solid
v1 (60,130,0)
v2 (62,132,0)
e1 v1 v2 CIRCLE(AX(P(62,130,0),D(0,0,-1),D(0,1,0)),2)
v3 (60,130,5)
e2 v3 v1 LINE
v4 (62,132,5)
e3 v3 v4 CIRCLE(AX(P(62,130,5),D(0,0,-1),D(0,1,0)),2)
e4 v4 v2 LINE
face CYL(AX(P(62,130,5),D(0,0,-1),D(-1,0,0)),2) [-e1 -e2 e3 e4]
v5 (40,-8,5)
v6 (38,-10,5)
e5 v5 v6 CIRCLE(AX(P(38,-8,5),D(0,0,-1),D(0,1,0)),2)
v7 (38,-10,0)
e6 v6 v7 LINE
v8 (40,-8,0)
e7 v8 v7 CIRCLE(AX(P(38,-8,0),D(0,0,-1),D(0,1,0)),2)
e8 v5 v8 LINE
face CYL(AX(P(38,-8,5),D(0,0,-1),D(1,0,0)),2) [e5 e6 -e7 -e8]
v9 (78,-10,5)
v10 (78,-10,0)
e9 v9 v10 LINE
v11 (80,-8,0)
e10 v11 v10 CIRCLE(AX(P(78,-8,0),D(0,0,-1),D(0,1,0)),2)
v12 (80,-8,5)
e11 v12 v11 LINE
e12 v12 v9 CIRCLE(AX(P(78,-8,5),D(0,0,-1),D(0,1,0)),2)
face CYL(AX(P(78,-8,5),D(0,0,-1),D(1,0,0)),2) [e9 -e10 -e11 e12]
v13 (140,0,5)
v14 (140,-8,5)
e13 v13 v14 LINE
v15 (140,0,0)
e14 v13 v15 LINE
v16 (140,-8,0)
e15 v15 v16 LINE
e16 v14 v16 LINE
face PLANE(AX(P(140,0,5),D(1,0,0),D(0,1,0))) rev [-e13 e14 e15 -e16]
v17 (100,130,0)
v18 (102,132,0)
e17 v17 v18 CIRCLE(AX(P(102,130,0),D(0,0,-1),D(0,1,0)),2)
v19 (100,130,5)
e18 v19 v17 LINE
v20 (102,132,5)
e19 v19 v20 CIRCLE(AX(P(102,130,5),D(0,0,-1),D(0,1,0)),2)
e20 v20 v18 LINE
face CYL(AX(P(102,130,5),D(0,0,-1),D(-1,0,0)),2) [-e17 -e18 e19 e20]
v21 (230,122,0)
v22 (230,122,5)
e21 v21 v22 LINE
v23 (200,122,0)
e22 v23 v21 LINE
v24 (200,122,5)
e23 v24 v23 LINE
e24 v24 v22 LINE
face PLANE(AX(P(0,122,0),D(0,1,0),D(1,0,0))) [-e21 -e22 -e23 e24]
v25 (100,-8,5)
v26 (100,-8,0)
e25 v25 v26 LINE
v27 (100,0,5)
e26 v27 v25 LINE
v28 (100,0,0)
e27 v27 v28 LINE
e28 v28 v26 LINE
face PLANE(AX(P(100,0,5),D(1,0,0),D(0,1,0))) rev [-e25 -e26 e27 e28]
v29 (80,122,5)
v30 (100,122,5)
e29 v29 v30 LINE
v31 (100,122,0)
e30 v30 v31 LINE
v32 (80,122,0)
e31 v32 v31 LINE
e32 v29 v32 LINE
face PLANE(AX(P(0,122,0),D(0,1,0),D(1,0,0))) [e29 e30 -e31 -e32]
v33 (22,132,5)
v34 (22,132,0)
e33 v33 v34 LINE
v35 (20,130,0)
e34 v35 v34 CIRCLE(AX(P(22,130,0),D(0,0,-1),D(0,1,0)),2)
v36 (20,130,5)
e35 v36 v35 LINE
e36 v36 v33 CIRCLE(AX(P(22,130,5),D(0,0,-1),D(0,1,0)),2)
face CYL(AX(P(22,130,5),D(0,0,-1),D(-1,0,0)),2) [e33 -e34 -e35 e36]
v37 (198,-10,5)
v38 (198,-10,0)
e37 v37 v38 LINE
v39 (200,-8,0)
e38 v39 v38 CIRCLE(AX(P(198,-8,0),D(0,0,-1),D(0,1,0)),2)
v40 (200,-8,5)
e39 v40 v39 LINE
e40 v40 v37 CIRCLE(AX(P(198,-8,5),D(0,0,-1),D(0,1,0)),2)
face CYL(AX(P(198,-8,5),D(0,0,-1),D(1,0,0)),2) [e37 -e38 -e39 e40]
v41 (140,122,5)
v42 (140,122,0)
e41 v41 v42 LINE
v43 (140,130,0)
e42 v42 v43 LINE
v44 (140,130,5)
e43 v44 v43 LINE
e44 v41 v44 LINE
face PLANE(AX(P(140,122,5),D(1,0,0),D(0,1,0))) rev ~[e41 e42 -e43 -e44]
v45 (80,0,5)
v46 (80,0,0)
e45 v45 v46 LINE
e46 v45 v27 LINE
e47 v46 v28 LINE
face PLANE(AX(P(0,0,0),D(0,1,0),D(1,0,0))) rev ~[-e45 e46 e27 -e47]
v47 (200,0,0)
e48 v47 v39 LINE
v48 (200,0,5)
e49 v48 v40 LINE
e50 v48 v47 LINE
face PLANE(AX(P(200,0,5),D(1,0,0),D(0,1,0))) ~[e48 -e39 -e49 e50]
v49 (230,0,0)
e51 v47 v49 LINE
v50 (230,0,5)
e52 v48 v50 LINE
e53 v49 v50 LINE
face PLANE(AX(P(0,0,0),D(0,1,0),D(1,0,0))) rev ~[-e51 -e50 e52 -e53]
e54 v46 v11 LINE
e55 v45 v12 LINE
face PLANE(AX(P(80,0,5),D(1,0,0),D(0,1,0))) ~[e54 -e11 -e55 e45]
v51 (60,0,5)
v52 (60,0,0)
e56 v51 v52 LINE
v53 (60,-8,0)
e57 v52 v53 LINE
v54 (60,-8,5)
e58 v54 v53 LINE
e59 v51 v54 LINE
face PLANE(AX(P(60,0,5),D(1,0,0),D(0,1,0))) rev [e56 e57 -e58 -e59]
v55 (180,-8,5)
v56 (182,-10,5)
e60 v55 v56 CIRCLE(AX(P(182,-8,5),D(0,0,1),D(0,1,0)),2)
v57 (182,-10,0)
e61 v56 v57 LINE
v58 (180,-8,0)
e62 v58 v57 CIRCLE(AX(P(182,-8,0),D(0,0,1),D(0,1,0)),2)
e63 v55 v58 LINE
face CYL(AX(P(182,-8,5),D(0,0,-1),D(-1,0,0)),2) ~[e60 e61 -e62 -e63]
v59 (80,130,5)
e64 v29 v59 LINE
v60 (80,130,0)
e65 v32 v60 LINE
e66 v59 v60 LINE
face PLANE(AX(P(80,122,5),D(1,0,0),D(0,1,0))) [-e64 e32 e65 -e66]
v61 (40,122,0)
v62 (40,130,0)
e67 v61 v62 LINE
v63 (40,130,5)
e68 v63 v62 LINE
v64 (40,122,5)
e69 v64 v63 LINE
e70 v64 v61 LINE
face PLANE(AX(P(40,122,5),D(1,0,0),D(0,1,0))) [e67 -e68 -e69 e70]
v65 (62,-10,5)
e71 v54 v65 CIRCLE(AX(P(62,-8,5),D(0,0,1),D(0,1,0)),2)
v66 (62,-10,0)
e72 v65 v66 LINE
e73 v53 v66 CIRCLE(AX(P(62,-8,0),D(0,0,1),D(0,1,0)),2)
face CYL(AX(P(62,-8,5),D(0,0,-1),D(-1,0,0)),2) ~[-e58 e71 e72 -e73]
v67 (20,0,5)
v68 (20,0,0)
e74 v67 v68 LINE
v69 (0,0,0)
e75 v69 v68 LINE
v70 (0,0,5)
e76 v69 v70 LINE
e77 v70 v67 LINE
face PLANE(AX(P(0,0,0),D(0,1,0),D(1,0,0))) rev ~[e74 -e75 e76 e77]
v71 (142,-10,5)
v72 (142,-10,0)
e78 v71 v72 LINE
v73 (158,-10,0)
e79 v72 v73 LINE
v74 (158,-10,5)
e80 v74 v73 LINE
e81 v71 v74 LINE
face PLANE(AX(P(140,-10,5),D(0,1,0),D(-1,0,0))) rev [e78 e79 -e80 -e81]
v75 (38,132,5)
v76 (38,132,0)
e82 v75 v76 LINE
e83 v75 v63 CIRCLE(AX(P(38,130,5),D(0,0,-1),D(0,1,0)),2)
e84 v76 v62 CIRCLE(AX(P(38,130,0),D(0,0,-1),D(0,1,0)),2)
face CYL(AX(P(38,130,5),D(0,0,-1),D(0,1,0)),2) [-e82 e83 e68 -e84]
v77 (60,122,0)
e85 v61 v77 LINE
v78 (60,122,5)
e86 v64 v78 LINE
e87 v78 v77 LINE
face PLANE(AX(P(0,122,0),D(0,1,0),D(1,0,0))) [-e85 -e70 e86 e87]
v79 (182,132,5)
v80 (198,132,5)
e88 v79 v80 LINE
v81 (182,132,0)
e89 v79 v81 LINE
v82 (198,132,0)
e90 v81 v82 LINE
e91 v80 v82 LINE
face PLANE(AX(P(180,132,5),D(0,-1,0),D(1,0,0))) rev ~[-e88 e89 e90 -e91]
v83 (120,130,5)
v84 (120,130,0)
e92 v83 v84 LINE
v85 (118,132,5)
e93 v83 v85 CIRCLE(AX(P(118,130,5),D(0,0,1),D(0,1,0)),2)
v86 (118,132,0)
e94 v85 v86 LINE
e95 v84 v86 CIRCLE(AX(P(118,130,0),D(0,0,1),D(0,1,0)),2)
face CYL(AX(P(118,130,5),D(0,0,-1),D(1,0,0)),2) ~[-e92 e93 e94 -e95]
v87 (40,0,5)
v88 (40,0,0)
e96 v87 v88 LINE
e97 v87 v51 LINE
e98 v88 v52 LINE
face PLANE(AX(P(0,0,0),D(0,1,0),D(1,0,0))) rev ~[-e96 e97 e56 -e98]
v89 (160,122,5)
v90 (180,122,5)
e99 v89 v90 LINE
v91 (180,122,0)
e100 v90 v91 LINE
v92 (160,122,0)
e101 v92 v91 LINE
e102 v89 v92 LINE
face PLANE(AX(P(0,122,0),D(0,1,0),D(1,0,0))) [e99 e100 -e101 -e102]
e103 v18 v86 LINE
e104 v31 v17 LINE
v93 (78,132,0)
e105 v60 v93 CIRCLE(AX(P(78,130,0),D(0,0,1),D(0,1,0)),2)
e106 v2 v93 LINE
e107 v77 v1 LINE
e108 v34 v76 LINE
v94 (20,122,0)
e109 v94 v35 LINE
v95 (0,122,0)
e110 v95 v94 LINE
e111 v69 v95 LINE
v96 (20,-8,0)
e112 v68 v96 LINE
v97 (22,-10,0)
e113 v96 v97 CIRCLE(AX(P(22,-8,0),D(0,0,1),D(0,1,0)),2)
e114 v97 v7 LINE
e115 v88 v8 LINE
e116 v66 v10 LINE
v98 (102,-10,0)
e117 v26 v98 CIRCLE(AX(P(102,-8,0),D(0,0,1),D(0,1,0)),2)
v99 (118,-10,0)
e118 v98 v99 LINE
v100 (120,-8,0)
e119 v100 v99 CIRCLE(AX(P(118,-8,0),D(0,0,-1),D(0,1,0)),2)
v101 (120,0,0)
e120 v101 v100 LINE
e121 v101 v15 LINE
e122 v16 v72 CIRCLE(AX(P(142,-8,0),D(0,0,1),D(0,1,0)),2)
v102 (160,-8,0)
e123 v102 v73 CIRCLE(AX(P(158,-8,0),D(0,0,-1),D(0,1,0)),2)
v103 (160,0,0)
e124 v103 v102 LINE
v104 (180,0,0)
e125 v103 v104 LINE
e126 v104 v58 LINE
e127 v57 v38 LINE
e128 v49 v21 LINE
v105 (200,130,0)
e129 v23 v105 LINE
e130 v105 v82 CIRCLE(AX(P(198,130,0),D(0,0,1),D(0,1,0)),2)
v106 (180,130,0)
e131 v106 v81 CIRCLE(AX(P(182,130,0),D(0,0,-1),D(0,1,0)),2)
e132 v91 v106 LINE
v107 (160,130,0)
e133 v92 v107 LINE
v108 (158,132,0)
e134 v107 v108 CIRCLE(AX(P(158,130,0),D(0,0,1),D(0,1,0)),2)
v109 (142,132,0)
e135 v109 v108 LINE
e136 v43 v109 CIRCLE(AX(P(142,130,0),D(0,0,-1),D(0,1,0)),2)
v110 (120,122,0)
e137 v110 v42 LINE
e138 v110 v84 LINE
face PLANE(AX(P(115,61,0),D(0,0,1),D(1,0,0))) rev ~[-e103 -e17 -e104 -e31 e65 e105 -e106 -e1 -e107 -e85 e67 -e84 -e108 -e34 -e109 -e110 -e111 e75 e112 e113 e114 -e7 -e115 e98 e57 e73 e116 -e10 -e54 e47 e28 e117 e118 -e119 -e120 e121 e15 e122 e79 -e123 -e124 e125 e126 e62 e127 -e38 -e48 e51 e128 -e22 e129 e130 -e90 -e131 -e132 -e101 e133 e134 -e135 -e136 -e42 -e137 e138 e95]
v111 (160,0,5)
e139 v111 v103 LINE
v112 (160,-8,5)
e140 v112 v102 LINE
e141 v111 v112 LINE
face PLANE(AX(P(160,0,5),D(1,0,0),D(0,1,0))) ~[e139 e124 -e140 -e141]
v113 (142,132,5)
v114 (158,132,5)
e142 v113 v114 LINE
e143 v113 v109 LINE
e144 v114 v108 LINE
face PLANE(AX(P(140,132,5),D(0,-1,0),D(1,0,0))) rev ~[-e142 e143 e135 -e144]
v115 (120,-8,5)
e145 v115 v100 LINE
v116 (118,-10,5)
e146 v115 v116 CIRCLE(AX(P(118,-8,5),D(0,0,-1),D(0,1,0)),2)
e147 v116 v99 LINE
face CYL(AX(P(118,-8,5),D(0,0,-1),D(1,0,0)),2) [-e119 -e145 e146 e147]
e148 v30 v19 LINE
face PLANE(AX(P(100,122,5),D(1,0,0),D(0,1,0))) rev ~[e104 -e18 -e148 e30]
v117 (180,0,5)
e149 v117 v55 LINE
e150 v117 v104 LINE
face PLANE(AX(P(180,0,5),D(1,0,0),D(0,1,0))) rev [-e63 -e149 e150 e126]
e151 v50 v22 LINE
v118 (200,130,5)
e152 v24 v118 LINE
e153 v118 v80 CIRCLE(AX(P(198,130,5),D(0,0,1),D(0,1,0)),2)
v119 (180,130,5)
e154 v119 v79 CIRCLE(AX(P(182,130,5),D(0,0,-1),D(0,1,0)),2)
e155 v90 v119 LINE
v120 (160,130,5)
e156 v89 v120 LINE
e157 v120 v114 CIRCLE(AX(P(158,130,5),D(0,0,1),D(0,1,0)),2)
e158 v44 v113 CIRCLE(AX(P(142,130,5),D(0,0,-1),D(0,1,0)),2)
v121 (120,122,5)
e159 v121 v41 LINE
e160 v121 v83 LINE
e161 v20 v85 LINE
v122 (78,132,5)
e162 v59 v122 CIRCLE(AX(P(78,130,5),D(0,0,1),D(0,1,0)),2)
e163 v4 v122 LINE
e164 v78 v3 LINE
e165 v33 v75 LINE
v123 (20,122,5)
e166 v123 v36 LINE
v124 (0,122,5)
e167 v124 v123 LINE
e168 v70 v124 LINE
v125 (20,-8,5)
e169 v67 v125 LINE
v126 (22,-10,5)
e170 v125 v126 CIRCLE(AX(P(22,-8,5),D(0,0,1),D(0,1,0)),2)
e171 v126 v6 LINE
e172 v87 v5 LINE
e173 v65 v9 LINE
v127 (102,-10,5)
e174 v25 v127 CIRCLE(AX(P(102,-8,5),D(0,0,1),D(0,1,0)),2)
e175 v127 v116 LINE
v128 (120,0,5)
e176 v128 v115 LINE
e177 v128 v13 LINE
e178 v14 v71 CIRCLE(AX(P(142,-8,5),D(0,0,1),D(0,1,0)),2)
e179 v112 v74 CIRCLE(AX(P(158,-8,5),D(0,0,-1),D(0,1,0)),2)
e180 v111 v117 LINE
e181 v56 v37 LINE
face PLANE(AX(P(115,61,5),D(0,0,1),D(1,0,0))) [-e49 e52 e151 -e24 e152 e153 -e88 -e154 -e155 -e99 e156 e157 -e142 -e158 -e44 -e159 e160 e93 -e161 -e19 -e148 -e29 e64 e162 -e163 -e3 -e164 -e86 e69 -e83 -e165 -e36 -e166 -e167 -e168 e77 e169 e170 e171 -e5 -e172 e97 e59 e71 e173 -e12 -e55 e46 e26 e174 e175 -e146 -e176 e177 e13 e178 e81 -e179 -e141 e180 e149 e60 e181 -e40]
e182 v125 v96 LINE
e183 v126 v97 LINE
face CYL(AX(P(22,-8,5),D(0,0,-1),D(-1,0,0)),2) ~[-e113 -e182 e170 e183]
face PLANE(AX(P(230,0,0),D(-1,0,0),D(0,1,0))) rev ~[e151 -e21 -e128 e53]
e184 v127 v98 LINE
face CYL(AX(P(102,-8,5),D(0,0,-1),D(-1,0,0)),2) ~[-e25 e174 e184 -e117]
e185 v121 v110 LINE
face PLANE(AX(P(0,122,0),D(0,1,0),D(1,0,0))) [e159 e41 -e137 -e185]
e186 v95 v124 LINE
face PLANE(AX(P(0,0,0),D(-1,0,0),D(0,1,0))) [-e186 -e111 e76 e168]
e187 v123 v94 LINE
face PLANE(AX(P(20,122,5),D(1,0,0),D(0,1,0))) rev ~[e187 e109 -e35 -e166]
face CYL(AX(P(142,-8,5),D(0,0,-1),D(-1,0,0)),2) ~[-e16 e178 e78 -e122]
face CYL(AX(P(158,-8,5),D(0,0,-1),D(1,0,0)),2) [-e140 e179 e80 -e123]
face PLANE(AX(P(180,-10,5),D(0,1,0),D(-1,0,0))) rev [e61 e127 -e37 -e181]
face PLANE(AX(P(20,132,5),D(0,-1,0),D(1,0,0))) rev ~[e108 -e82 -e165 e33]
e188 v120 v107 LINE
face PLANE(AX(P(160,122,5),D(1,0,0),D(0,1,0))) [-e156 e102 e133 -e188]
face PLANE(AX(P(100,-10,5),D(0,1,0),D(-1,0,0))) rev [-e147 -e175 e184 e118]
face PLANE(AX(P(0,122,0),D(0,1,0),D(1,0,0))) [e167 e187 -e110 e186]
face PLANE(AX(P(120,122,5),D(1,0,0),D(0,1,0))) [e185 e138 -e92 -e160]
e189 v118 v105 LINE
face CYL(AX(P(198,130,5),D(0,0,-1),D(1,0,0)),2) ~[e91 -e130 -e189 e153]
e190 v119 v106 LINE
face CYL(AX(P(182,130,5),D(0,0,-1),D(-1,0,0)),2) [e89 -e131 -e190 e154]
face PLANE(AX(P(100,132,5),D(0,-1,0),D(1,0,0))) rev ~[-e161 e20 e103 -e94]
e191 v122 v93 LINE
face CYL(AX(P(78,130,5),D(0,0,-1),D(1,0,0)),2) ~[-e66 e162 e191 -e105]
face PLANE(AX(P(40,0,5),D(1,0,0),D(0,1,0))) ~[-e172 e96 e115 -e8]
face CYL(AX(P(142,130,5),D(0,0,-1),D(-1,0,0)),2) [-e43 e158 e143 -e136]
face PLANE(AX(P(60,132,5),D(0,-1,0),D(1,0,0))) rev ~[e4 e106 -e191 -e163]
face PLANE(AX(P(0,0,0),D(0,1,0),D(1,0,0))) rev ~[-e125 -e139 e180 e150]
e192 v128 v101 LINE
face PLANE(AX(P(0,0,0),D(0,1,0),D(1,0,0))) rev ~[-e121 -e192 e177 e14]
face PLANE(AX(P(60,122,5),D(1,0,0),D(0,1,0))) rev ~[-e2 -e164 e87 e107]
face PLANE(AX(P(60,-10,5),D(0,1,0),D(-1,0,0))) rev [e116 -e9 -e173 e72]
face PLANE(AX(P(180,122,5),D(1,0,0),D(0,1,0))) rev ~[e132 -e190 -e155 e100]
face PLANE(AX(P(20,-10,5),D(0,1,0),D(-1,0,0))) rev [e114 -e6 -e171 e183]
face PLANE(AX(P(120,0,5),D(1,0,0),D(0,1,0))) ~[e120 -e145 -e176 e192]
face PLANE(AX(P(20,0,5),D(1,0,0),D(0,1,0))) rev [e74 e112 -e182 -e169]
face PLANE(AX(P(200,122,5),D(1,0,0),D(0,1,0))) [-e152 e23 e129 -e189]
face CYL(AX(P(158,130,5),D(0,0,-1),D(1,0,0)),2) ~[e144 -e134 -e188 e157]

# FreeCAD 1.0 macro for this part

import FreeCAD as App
import Part
import Sketcher
from FreeCAD import Vector
Q = App.Units.Quantity


def edges_at(feature, points):
    """Names of the edges that pass closest to the given points."""
    edges = feature.Shape.Edges
    near = lambda p: min(range(len(edges)), key=lambda i: edges[i].distToShape(Part.Vertex(*p))[0])
    return sorted({f"Edge{near(p) + 1}" for p in points})

doc = App.newDocument("Part")
body = doc.addObject("PartDesign::Body", "Body")

# Sketch on XY plane
sketch1 = doc.addObject("Sketcher::SketchObject", "Sketch")
body.addObject(sketch1)
sketch1.AttachmentSupport = (doc.XY_Plane, [""])
sketch1.MapMode = "FlatFace"
sketch1.addGeometry(Part.LineSegment(Vector(0, 122, 0), Vector(0, 0, 0)), False)
sketch1.addGeometry(Part.LineSegment(Vector(0, 0, 0), Vector(230, 0, 0)), False)
sketch1.addGeometry(Part.LineSegment(Vector(230, 0, 0), Vector(230, 122, 0)), False)
sketch1.addGeometry(Part.LineSegment(Vector(230, 122, 0), Vector(0, 122, 0)), False)
sketch1.addConstraint(Sketcher.Constraint("Coincident", 0, 2, 1, 1))
sketch1.addConstraint(Sketcher.Constraint("Coincident", 1, 2, 2, 1))
sketch1.addConstraint(Sketcher.Constraint("Coincident", 2, 2, 3, 1))
sketch1.addConstraint(Sketcher.Constraint("Coincident", 3, 2, 0, 1))
sketch1.addConstraint(Sketcher.Constraint("Vertical", 0))
sketch1.addConstraint(Sketcher.Constraint("Horizontal", 1))
sketch1.addConstraint(Sketcher.Constraint("Vertical", 2))
sketch1.addConstraint(Sketcher.Constraint("Horizontal", 3))
sketch1.addConstraint(Sketcher.Constraint("Coincident", 0, 2, -1, 1))
sketch1.addConstraint(Sketcher.Constraint("DistanceX", 1, 1, 1, 2, Q("230 mm")))
sketch1.addConstraint(Sketcher.Constraint("DistanceY", 0, 2, 0, 1, Q("122 mm")))
pad1 = doc.addObject("PartDesign::Pad", "Pad")
body.addObject(pad1)
pad1.Profile = sketch1
pad1.Length = 5

# Sketch on XY plane
sketch2 = doc.addObject("Sketcher::SketchObject", "Sketch001")
body.addObject(sketch2)
sketch2.AttachmentSupport = (doc.XY_Plane, [""])
sketch2.MapMode = "FlatFace"
sketch2.AttachmentOffset = App.Placement(Vector(0, 0, 5), App.Rotation())
sketch2.addGeometry(Part.LineSegment(Vector(20, 132, 0), Vector(20, 122, 0)), False)
sketch2.addGeometry(Part.LineSegment(Vector(20, 122, 0), Vector(40, 122, 0)), False)
sketch2.addGeometry(Part.LineSegment(Vector(40, 122, 0), Vector(40, 132, 0)), False)
sketch2.addGeometry(Part.LineSegment(Vector(40, 132, 0), Vector(20, 132, 0)), False)
sketch2.addGeometry(Part.LineSegment(Vector(60, 132, 0), Vector(60, 122, 0)), False)
sketch2.addGeometry(Part.LineSegment(Vector(60, 122, 0), Vector(80, 122, 0)), False)
sketch2.addGeometry(Part.LineSegment(Vector(80, 122, 0), Vector(80, 132, 0)), False)
sketch2.addGeometry(Part.LineSegment(Vector(80, 132, 0), Vector(60, 132, 0)), False)
sketch2.addGeometry(Part.LineSegment(Vector(100, 132, 0), Vector(100, 122, 0)), False)
sketch2.addGeometry(Part.LineSegment(Vector(100, 122, 0), Vector(120, 122, 0)), False)
sketch2.addGeometry(Part.LineSegment(Vector(120, 122, 0), Vector(120, 132, 0)), False)
sketch2.addGeometry(Part.LineSegment(Vector(120, 132, 0), Vector(100, 132, 0)), False)
sketch2.addGeometry(Part.LineSegment(Vector(140, 132, 0), Vector(140, 122, 0)), False)
sketch2.addGeometry(Part.LineSegment(Vector(140, 122, 0), Vector(160, 122, 0)), False)
sketch2.addGeometry(Part.LineSegment(Vector(160, 122, 0), Vector(160, 132, 0)), False)
sketch2.addGeometry(Part.LineSegment(Vector(160, 132, 0), Vector(140, 132, 0)), False)
sketch2.addGeometry(Part.LineSegment(Vector(180, 132, 0), Vector(180, 122, 0)), False)
sketch2.addGeometry(Part.LineSegment(Vector(180, 122, 0), Vector(200, 122, 0)), False)
sketch2.addGeometry(Part.LineSegment(Vector(200, 122, 0), Vector(200, 132, 0)), False)
sketch2.addGeometry(Part.LineSegment(Vector(200, 132, 0), Vector(180, 132, 0)), False)
sketch2.addConstraint(Sketcher.Constraint("Coincident", 0, 2, 1, 1))
sketch2.addConstraint(Sketcher.Constraint("Coincident", 1, 2, 2, 1))
sketch2.addConstraint(Sketcher.Constraint("Coincident", 2, 2, 3, 1))
sketch2.addConstraint(Sketcher.Constraint("Coincident", 3, 2, 0, 1))
sketch2.addConstraint(Sketcher.Constraint("Coincident", 4, 2, 5, 1))
sketch2.addConstraint(Sketcher.Constraint("Coincident", 5, 2, 6, 1))
sketch2.addConstraint(Sketcher.Constraint("Coincident", 6, 2, 7, 1))
sketch2.addConstraint(Sketcher.Constraint("Coincident", 7, 2, 4, 1))
sketch2.addConstraint(Sketcher.Constraint("Coincident", 8, 2, 9, 1))
sketch2.addConstraint(Sketcher.Constraint("Coincident", 9, 2, 10, 1))
sketch2.addConstraint(Sketcher.Constraint("Coincident", 10, 2, 11, 1))
sketch2.addConstraint(Sketcher.Constraint("Coincident", 11, 2, 8, 1))
sketch2.addConstraint(Sketcher.Constraint("Coincident", 12, 2, 13, 1))
sketch2.addConstraint(Sketcher.Constraint("Coincident", 13, 2, 14, 1))
sketch2.addConstraint(Sketcher.Constraint("Coincident", 14, 2, 15, 1))
sketch2.addConstraint(Sketcher.Constraint("Coincident", 15, 2, 12, 1))
sketch2.addConstraint(Sketcher.Constraint("Coincident", 16, 2, 17, 1))
sketch2.addConstraint(Sketcher.Constraint("Coincident", 17, 2, 18, 1))
sketch2.addConstraint(Sketcher.Constraint("Coincident", 18, 2, 19, 1))
sketch2.addConstraint(Sketcher.Constraint("Coincident", 19, 2, 16, 1))
sketch2.addConstraint(Sketcher.Constraint("Vertical", 0))
sketch2.addConstraint(Sketcher.Constraint("Horizontal", 1))
sketch2.addConstraint(Sketcher.Constraint("Vertical", 2))
sketch2.addConstraint(Sketcher.Constraint("Horizontal", 3))
sketch2.addConstraint(Sketcher.Constraint("Vertical", 4))
sketch2.addConstraint(Sketcher.Constraint("Horizontal", 5))
sketch2.addConstraint(Sketcher.Constraint("Vertical", 6))
sketch2.addConstraint(Sketcher.Constraint("Horizontal", 7))
sketch2.addConstraint(Sketcher.Constraint("Vertical", 8))
sketch2.addConstraint(Sketcher.Constraint("Horizontal", 9))
sketch2.addConstraint(Sketcher.Constraint("Vertical", 10))
sketch2.addConstraint(Sketcher.Constraint("Horizontal", 11))
sketch2.addConstraint(Sketcher.Constraint("Vertical", 12))
sketch2.addConstraint(Sketcher.Constraint("Horizontal", 13))
sketch2.addConstraint(Sketcher.Constraint("Vertical", 14))
sketch2.addConstraint(Sketcher.Constraint("Horizontal", 15))
sketch2.addConstraint(Sketcher.Constraint("Vertical", 16))
sketch2.addConstraint(Sketcher.Constraint("Horizontal", 17))
sketch2.addConstraint(Sketcher.Constraint("Vertical", 18))
sketch2.addConstraint(Sketcher.Constraint("Horizontal", 19))
sketch2.addConstraint(Sketcher.Constraint("Horizontal", 1, 2, 4, 2))
sketch2.addConstraint(Sketcher.Constraint("Horizontal", 3, 2, 6, 2))
sketch2.addConstraint(Sketcher.Constraint("Horizontal", 5, 2, 8, 2))
sketch2.addConstraint(Sketcher.Constraint("Horizontal", 7, 2, 10, 2))
sketch2.addConstraint(Sketcher.Constraint("Horizontal", 9, 2, 12, 2))
sketch2.addConstraint(Sketcher.Constraint("Horizontal", 11, 2, 14, 2))
sketch2.addConstraint(Sketcher.Constraint("Horizontal", 13, 2, 16, 2))
sketch2.addConstraint(Sketcher.Constraint("Horizontal", 15, 2, 18, 2))
sketch2.addConstraint(Sketcher.Constraint("Equal", 3, 5))
sketch2.addConstraint(Sketcher.Constraint("Equal", 7, 9))
sketch2.addConstraint(Sketcher.Constraint("Equal", 11, 13))
sketch2.addConstraint(Sketcher.Constraint("Equal", 15, 17))
sketch2.addConstraint(Sketcher.Constraint("DistanceX", 1, 1, 1, 2, Q("20 mm")))
sketch2.addConstraint(Sketcher.Constraint("DistanceY", 0, 2, 0, 1, Q("10 mm")))
sketch2.addConstraint(Sketcher.Constraint("DistanceX", -1, 1, 0, 2, Q("20 mm")))
sketch2.addConstraint(Sketcher.Constraint("DistanceY", -1, 1, 0, 2, Q("122 mm")))
sketch2.addConstraint(Sketcher.Constraint("DistanceX", -1, 1, 4, 2, Q("60 mm")))
sketch2.addConstraint(Sketcher.Constraint("DistanceX", -1, 1, 8, 2, Q("100 mm")))
sketch2.addConstraint(Sketcher.Constraint("DistanceX", -1, 1, 12, 2, Q("140 mm")))
sketch2.addConstraint(Sketcher.Constraint("DistanceX", -1, 1, 16, 2, Q("180 mm")))
pad2 = doc.addObject("PartDesign::Pad", "Pad001")
body.addObject(pad2)
pad2.Profile = sketch2
pad2.Length = 5
pad2.Reversed = True
doc.recompute()

fillet = doc.addObject("PartDesign::Fillet", "Fillet")
body.addObject(fillet)
fillet.Base = (pad2, edges_at(pad2, [
    (40, 132, 2.5),
    (20, 132, 2.5),
    (80, 132, 2.5),
    (60, 132, 2.5),
    (120, 132, 2.5),
    (100, 132, 2.5),
    (160, 132, 2.5),
    (140, 132, 2.5),
    (200, 132, 2.5),
    (180, 132, 2.5),
]))
fillet.Radius = 2
doc.recompute()

datumplane = doc.addObject("PartDesign::Plane", "DatumPlane")
body.addObject(datumplane)
datumplane.AttachmentSupport = (doc.XZ_Plane, [""])
datumplane.MapMode = "FlatFace"
datumplane.AttachmentOffset = App.Placement(Vector(0, 0, -61), App.Rotation())
mirrored = doc.addObject("PartDesign::Mirrored", "Mirrored")
body.addObject(mirrored)
mirrored.Originals = [pad2]
mirrored.MirrorPlane = (datumplane, [""])
body.Tip = mirrored
doc.recompute()

fillet2 = doc.addObject("PartDesign::Fillet", "Fillet001")
body.addObject(fillet2)
fillet2.Base = (mirrored, edges_at(mirrored, [
    (40, -10, 2.5),
    (20, -10, 2.5),
    (80, -10, 2.5),
    (60, -10, 2.5),
    (120, -10, 2.5),
    (100, -10, 2.5),
    (160, -10, 2.5),
    (140, -10, 2.5),
    (200, -10, 2.5),
    (180, -10, 2.5),
]))
fillet2.Radius = 2

doc.recompute()
